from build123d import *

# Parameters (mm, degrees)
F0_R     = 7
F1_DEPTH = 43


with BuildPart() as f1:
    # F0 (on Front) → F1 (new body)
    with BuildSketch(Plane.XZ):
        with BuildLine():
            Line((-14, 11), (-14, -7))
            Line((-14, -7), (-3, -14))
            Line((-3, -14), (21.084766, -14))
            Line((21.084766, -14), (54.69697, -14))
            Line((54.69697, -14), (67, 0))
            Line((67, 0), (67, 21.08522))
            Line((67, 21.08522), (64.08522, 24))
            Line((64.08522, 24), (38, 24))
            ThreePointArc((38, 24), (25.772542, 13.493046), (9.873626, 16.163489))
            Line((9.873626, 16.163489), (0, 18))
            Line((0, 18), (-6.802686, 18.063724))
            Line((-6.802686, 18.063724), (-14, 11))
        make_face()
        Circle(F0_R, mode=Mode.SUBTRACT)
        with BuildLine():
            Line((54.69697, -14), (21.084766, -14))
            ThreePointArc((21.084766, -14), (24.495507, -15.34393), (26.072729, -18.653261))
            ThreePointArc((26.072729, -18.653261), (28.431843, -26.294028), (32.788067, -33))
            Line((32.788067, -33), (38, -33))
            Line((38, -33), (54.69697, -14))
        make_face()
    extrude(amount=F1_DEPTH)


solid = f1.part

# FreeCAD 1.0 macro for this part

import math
import FreeCAD as App
import Part
import Sketcher
from FreeCAD import Vector
Q = App.Units.Quantity

doc = App.newDocument("Part")
body = doc.addObject("PartDesign::Body", "Body")

# Sketch on XZ plane
sketch1 = doc.addObject("Sketcher::SketchObject", "Sketch")
body.addObject(sketch1)
sketch1.AttachmentSupport = (doc.XZ_Plane, [""])
sketch1.MapMode = "FlatFace"
sketch1.addGeometry([
    Part.LineSegment(Vector(-14, 11, 0), Vector(-14, -7, 0)),  # 0
    Part.LineSegment(Vector(-14, -7, 0), Vector(-3, -14, 0)),  # 1
    Part.LineSegment(Vector(-3, -14, 0), Vector(21.1, -14, 0)),  # 2
    Part.ArcOfCircle(Part.Circle(Vector(21.1, -19, 0), Vector(0, 0, 1), 5), math.radians(4), math.radians(90)),  # 3
    Part.ArcOfCircle(Part.Circle(Vector(54.7, -14, 0), Vector(0, 0, 1), 29), math.radians(-171), math.radians(-139)),  # 4
    Part.LineSegment(Vector(32.8, -33, 0), Vector(38, -33, 0)),  # 5
    Part.LineSegment(Vector(38, -33, 0), Vector(54.7, -14, 0)),  # 6
    Part.LineSegment(Vector(54.7, -14, 0), Vector(67, 0, 0)),  # 7
    Part.LineSegment(Vector(67, 0, 0), Vector(67, 21.1, 0)),  # 8
    Part.LineSegment(Vector(67, 21.1, 0), Vector(64.1, 24, 0)),  # 9
    Part.LineSegment(Vector(64.1, 24, 0), Vector(38, 24, 0)),  # 10
    Part.ArcOfCircle(Part.Circle(Vector(20.7, 31.8, 0), Vector(0, 0, 1), 19), math.radians(-125), math.radians(-24)),  # 11
    Part.LineSegment(Vector(9.9, 16.2, 0), Vector(0, 18, 0)),  # 12
    Part.LineSegment(Vector(0, 18, 0), Vector(-6.8, 18.1, 0)),  # 13
    Part.LineSegment(Vector(-6.8, 18.1, 0), Vector(-14, 11, 0)),  # 14
    Part.Circle(Vector(0, 0, 0), Vector(0, 0, 1), 7),  # 15
], False)
sketch1.addConstraint([
    Sketcher.Constraint("Coincident", 0, 2, 1, 1),
    Sketcher.Constraint("Coincident", 1, 2, 2, 1),
    Sketcher.Constraint("Tangent", 2, 2, 3, 2),
    Sketcher.Constraint("Coincident", 3, 1, 4, 1),
    Sketcher.Constraint("Coincident", 4, 2, 5, 1),
    Sketcher.Constraint("Coincident", 5, 2, 6, 1),
    Sketcher.Constraint("Coincident", 6, 2, 7, 1),
    Sketcher.Constraint("Coincident", 7, 2, 8, 1),
    Sketcher.Constraint("Coincident", 8, 2, 9, 1),
    Sketcher.Constraint("Coincident", 9, 2, 10, 1),
    Sketcher.Constraint("Coincident", 10, 2, 11, 2),
    Sketcher.Constraint("Coincident", 11, 1, 12, 1),
    Sketcher.Constraint("Coincident", 12, 2, 13, 1),
    Sketcher.Constraint("Coincident", 13, 2, 14, 1),
    Sketcher.Constraint("Coincident", 14, 2, 0, 1),
    Sketcher.Constraint("Vertical", 0),
    Sketcher.Constraint("Horizontal", 2),
    Sketcher.Constraint("Horizontal", 5),
    Sketcher.Constraint("Vertical", 8),
    Sketcher.Constraint("Horizontal", 10),
    Sketcher.Constraint("Coincident", 15, 3, -1, 1),
    Sketcher.Constraint("Coincident", 6, 2, 4, 3),
    Sketcher.Constraint("PointOnObject", 7, 2, -1),
    Sketcher.Constraint("PointOnObject", 12, 2, -2),
    Sketcher.Constraint("Parallel", 6, 7),
    Sketcher.Constraint("Horizontal", 4, 3, 1, 2),
    Sketcher.Constraint("Vertical", 5, 2, 10, 2),
    Sketcher.Constraint("Diameter", 15, Q("14 mm")),
    Sketcher.Constraint("Radius", 3, Q("5 mm")),
    Sketcher.Constraint("Radius", 4, Q("29 mm")),
    Sketcher.Constraint("Radius", 11, Q("19 mm")),
    Sketcher.Constraint("DistanceY", 0, 2, 0, 1, Q("18 mm")),
    Sketcher.Constraint("Angle", 9, Q("135 deg")),
    Sketcher.Constraint("DistanceY", 3, 3, -1, 1, Q("19 mm")),
    Sketcher.Constraint("DistanceX", 0, 2, -1, 1, Q("14 mm")),
    Sketcher.Constraint("DistanceY", 0, 2, -1, 1, Q("7 mm")),
    Sketcher.Constraint("DistanceX", 1, 2, -1, 1, Q("3 mm")),
    Sketcher.Constraint("DistanceY", 4, 2, -1, 1, Q("33 mm")),
    Sketcher.Constraint("DistanceX", -1, 1, 5, 2, Q("38 mm")),
    Sketcher.Constraint("DistanceX", -1, 1, 7, 2, Q("67 mm")),
    Sketcher.Constraint("DistanceY", -1, 1, 9, 2, Q("24 mm")),
    Sketcher.Constraint("DistanceY", -1, 1, 12, 2, Q("18 mm")),
    Sketcher.Constraint("DistanceX", 10, 2, 10, 1, Q("26.08522 mm")),
    Sketcher.Constraint("DistanceX", 3, 3, 4, 2, Q("11.703301 mm")),
    Sketcher.Constraint("Distance", 12, Q("10.042971 mm")),
    Sketcher.Constraint("Distance", 14, Q("10.084519 mm")),
    Sketcher.Constraint("DistanceY", -1, 1, 11, 1, Q("16.163489 mm")),
    Sketcher.Constraint("DistanceX", 13, 2, 11, 3, Q("27.475721 mm")),
])
pad1 = doc.addObject("PartDesign::Pad", "Pad")
body.addObject(pad1)
pad1.Profile = sketch1
pad1.Length = 43

doc.recompute()
